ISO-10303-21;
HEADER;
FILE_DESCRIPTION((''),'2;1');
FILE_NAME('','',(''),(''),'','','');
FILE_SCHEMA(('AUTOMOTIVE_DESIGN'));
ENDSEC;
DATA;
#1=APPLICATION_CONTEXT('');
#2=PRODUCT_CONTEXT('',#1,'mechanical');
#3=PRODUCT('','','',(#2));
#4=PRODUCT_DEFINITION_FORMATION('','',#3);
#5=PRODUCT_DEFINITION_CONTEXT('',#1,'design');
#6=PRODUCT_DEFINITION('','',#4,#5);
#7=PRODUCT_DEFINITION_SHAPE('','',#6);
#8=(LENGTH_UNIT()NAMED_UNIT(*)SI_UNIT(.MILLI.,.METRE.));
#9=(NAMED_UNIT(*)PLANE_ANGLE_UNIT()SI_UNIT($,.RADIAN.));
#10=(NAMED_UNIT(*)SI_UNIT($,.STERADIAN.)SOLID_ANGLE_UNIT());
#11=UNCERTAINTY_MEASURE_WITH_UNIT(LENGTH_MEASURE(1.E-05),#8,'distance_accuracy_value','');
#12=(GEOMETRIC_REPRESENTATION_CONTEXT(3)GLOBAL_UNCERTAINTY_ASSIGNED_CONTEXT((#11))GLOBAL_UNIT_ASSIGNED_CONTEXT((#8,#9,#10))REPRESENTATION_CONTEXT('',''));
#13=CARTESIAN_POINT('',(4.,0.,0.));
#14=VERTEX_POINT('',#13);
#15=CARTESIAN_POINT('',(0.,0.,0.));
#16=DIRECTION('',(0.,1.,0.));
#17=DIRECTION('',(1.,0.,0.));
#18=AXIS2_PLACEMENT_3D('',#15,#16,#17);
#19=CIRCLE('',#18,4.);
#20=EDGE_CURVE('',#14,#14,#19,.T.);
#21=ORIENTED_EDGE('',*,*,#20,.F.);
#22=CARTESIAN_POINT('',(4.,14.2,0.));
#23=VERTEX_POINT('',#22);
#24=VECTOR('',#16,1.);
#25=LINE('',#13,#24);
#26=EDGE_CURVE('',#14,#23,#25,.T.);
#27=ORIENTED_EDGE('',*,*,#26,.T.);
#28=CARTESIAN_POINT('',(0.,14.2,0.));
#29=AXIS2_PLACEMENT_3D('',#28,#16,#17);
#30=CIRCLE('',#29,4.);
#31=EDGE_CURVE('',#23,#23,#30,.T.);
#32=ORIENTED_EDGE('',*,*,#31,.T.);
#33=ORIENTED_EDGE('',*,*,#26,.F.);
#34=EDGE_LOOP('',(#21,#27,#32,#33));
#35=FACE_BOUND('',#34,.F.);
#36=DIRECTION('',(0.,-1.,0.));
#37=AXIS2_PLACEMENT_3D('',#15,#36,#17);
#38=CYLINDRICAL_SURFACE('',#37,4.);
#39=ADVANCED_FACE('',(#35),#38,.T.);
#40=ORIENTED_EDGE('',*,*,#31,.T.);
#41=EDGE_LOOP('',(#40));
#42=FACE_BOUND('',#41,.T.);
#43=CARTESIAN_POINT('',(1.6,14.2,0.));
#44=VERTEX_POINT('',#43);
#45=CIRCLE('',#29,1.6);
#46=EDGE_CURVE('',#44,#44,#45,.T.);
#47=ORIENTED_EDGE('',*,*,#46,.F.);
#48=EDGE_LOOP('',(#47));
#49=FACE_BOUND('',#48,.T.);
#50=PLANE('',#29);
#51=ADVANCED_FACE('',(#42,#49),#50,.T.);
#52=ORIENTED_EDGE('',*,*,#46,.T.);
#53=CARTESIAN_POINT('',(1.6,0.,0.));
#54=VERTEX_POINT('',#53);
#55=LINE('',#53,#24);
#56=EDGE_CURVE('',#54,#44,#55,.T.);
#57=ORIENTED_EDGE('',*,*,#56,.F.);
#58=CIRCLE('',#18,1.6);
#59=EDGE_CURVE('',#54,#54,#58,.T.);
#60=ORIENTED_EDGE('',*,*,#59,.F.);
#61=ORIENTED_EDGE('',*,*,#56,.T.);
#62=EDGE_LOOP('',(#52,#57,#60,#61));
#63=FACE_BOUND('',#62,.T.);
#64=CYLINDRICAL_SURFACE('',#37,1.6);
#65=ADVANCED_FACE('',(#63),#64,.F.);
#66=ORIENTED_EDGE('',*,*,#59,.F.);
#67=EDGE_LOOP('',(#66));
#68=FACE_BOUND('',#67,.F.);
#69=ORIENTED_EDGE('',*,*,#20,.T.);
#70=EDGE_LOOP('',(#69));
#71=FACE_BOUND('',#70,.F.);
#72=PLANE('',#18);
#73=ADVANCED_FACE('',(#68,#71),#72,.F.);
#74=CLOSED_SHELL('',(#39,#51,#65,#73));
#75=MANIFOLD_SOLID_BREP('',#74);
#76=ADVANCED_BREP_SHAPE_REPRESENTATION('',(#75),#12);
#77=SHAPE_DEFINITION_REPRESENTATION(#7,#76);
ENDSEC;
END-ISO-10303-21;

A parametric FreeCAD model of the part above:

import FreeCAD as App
import Part
import Sketcher
from FreeCAD import Vector
Q = App.Units.Quantity

doc = App.newDocument("Part")
body = doc.addObject("PartDesign::Body", "Body")

sketch1 = body.newObject("Sketcher::SketchObject", "Sketch")
sketch1.AttachmentSupport = (doc.getObject("XZ_Plane"), [""])
sketch1.MapMode = "FlatFace"
sketch1.addGeometry([
    Part.Circle(Vector(0, 0, 0), Vector(0, 0, 1), 4),
    Part.Circle(Vector(0, 0, 0), Vector(0, 0, 1), 1.6),
], False)
sketch1.addConstraint([
    Sketcher.Constraint("Coincident", 0, 3, -1, 1),
    Sketcher.Constraint("Coincident", 1, 3, -1, 1),
    Sketcher.Constraint("Diameter", 0, Q("8 mm")),
    Sketcher.Constraint("Diameter", 1, Q("3.2 mm")),
])
pad1 = body.newObject("PartDesign::Pad", "Pad")
pad1.Profile = sketch1
pad1.Length = 14.2
pad1.Reversed = True

doc.recompute()
